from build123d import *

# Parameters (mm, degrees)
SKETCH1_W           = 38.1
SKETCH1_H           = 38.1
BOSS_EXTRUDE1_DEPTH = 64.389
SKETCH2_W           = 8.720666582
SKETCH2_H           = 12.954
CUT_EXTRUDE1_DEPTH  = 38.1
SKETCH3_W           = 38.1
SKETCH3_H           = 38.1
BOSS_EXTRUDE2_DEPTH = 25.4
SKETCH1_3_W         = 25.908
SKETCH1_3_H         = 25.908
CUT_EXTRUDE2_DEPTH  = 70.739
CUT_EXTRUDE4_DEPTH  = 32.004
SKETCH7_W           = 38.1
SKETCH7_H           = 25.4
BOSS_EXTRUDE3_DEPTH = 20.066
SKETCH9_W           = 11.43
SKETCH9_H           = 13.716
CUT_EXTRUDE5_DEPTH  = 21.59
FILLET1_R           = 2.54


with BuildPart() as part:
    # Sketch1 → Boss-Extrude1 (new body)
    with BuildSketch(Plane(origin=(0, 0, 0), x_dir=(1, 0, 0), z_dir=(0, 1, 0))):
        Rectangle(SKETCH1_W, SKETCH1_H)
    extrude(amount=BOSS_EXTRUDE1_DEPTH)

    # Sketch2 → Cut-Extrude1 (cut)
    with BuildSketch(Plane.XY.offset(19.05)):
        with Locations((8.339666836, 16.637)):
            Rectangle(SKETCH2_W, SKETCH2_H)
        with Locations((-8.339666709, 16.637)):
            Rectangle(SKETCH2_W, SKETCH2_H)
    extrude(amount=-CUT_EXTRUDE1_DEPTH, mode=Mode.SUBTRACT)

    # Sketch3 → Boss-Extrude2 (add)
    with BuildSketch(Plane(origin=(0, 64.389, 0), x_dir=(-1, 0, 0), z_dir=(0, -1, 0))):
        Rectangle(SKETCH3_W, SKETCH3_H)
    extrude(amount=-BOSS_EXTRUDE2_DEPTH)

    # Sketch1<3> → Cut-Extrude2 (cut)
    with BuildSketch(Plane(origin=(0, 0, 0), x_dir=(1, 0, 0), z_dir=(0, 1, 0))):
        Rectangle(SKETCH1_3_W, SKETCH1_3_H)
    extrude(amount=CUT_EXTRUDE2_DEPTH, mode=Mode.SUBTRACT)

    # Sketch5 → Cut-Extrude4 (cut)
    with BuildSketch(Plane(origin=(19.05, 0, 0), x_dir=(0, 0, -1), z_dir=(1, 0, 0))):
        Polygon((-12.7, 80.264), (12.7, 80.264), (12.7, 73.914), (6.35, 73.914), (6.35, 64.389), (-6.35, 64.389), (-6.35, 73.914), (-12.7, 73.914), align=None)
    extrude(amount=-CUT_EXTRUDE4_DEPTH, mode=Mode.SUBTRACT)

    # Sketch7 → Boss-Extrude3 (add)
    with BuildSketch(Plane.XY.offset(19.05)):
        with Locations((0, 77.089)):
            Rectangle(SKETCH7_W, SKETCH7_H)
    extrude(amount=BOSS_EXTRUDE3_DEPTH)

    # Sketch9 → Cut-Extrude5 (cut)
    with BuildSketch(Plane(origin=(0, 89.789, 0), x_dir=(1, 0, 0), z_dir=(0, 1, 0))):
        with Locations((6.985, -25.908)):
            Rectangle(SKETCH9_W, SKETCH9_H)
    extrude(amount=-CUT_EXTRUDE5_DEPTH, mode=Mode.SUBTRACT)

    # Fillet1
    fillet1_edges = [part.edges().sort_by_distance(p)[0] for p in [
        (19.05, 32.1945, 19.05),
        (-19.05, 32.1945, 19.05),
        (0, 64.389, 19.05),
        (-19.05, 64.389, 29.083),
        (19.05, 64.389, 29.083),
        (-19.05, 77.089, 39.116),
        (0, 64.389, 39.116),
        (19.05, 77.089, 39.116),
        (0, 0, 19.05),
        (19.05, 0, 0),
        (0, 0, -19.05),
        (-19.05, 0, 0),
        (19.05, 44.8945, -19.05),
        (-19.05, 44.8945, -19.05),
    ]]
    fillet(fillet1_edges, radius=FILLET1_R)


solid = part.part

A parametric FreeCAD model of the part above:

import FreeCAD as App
import Part
import Sketcher
from FreeCAD import Vector
Q = App.Units.Quantity


def edges_at(feature, points):
    """Names of the edges that pass closest to the given points."""
    edges = feature.Shape.Edges
    near = lambda p: min(range(len(edges)), key=lambda i: edges[i].distToShape(Part.Vertex(*p))[0])
    return sorted({f"Edge{near(p) + 1}" for p in points})


def add_polygon(sketch, points):
    """Adds a closed chain of lines whose ends are joined by coincident constraints."""
    first, n = sketch.GeometryCount, len(points)
    for a, b in zip(points, points[1:] + points[:1]):
        sketch.addGeometry(Part.LineSegment(App.Vector(*a, 0), App.Vector(*b, 0)), False)
    for i in range(n):
        sketch.addConstraint(Sketcher.Constraint("Coincident", first + i, 2, first + (i + 1) % n, 1))

doc = App.newDocument("Part")
body = doc.addObject("PartDesign::Body", "Body")

sketch1 = body.newObject("Sketcher::SketchObject", "Sketch")
sketch1.AttachmentSupport = (doc.getObject("XZ_Plane"), [""])
sketch1.MapMode = "FlatFace"
add_polygon(sketch1, [(-19, -19), (-19, 19), (19, 19), (19, -19)])
sketch1.addConstraint([
    Sketcher.Constraint("Vertical", 0),
    Sketcher.Constraint("Horizontal", 1),
    Sketcher.Constraint("Vertical", 2),
    Sketcher.Constraint("Horizontal", 3),
    Sketcher.Constraint("Symmetric", 0, 2, 2, 2, -1, 1),
    Sketcher.Constraint("Equal", 3, 0),
    Sketcher.Constraint("DistanceX", 1, 1, 1, 2, Q("1.5 in")),
])
pad1 = body.newObject("PartDesign::Pad", "Pad")
pad1.Profile = sketch1
pad1.Length = Q("2.535 in")
pad1.Reversed = True

sketch2 = body.newObject("Sketcher::SketchObject", "Sketch001")
sketch2.AttachmentSupport = (doc.getObject("XY_Plane"), [""])
sketch2.MapMode = "FlatFace"
sketch2.AttachmentOffset = App.Placement(Vector(0, 0, 0.75 * 25.4), App.Rotation())
add_polygon(sketch2, [(4, 23), (4, 10), (13, 10), (13, 23)])
add_polygon(sketch2, [(-13, 23), (-13, 10), (-4, 10), (-4, 23)])
sketch2.addConstraint([
    Sketcher.Constraint("Vertical", 0),
    Sketcher.Constraint("Horizontal", 1),
    Sketcher.Constraint("Vertical", 2),
    Sketcher.Constraint("Horizontal", 3),
    Sketcher.Constraint("Vertical", 4),
    Sketcher.Constraint("Horizontal", 5),
    Sketcher.Constraint("Vertical", 6),
    Sketcher.Constraint("Horizontal", 7),
    Sketcher.Constraint("Symmetric", 1, 2, 4, 2, -2),
    Sketcher.Constraint("Symmetric", 3, 2, 6, 2, -2),
    Sketcher.Constraint("DistanceX", 4, 2, 1, 2, Q("1 in")),
    Sketcher.Constraint("DistanceY", 0, 2, 0, 1, Q("0.51 in")),
    Sketcher.Constraint("DistanceY", -1, 1, 0, 2, Q("0.4 in")),
    Sketcher.Constraint("DistanceX", 1, 1, 1, 2, Q("8.720667 mm")),
])
pocket1 = body.newObject("PartDesign::Pocket", "Pocket")
pocket1.Profile = sketch2
pocket1.Length = Q("1.5 in")

sketch3 = body.newObject("Sketcher::SketchObject", "Sketch002")
sketch3.AttachmentSupport = (doc.getObject("XZ_Plane"), [""])
sketch3.MapMode = "FlatFace"
sketch3.AttachmentOffset = App.Placement(Vector(0, 0, -2.535 * 25.4), App.Rotation())
add_polygon(sketch3, [(19, -19), (19, 19), (-19, 19), (-19, -19)])
sketch3.addConstraint([
    Sketcher.Constraint("Vertical", 0),
    Sketcher.Constraint("Horizontal", 1),
    Sketcher.Constraint("Vertical", 2),
    Sketcher.Constraint("Horizontal", 3),
    Sketcher.Constraint("Symmetric", 0, 2, 2, 2, -1, 1),
    Sketcher.Constraint("Equal", 3, 0),
    Sketcher.Constraint("DistanceX", 1, 2, 1, 1, Q("1.5 in")),
])
pad2 = body.newObject("PartDesign::Pad", "Pad001")
pad2.Profile = sketch3
pad2.Length = Q("1 in")
pad2.Reversed = True

sketch4 = body.newObject("Sketcher::SketchObject", "Sketch003")
sketch4.AttachmentSupport = (doc.getObject("XZ_Plane"), [""])
sketch4.MapMode = "FlatFace"
add_polygon(sketch4, [(-13, -13), (-13, 13), (13, 13), (13, -13)])
sketch4.addConstraint([
    Sketcher.Constraint("Vertical", 0),
    Sketcher.Constraint("Horizontal", 1),
    Sketcher.Constraint("Vertical", 2),
    Sketcher.Constraint("Horizontal", 3),
    Sketcher.Constraint("Symmetric", 0, 2, 2, 2, -1, 1),
    Sketcher.Constraint("Equal", 3, 0),
    Sketcher.Constraint("DistanceX", 1, 1, 1, 2, Q("1.02 in")),
])
pocket2 = body.newObject("PartDesign::Pocket", "Pocket001")
pocket2.Profile = sketch4
pocket2.Length = Q("2.785 in")

sketch5 = body.newObject("Sketcher::SketchObject", "Sketch004")
sketch5.AttachmentSupport = (doc.getObject("YZ_Plane"), [""])
sketch5.MapMode = "FlatFace"
sketch5.AttachmentOffset = App.Placement(Vector(0, 0, 0.75 * 25.4), App.Rotation())
add_polygon(sketch5, [(80, -13), (80, 13), (74, 13), (74, 6), (64, 6), (64, -6), (74, -6), (74, -13)])
sketch5.addConstraint([
    Sketcher.Constraint("Vertical", 0),
    Sketcher.Constraint("Horizontal", 1),
    Sketcher.Constraint("Vertical", 2),
    Sketcher.Constraint("Horizontal", 3),
    Sketcher.Constraint("Vertical", 4),
    Sketcher.Constraint("Horizontal", 5),
    Sketcher.Constraint("Vertical", 6),
    Sketcher.Constraint("Horizontal", 7),
    Sketcher.Constraint("Symmetric", 2, 2, 5, 2, -1),
    Sketcher.Constraint("Equal", 7, 2),
    Sketcher.Constraint("Equal", 2, 6),
    Sketcher.Constraint("DistanceY", 0, 1, 0, 2, Q("1 in")),
    Sketcher.Constraint("DistanceY", 4, 2, 4, 1, Q("0.5 in")),
    Sketcher.Constraint("DistanceX", 3, 2, 3, 1, Q("0.375 in")),
    Sketcher.Constraint("DistanceX", -1, 1, 0, 2, Q("3.16 in")),
])
pocket3 = body.newObject("PartDesign::Pocket", "Pocket002")
pocket3.Profile = sketch5
pocket3.Length = Q("1.26 in")

sketch6 = body.newObject("Sketcher::SketchObject", "Sketch005")
sketch6.AttachmentSupport = (doc.getObject("XY_Plane"), [""])
sketch6.MapMode = "FlatFace"
sketch6.AttachmentOffset = App.Placement(Vector(0, 0, 0.75 * 25.4), App.Rotation())
add_polygon(sketch6, [(-19, 90), (-19, 64), (19, 64), (19, 90)])
sketch6.addConstraint([
    Sketcher.Constraint("Vertical", 0),
    Sketcher.Constraint("Horizontal", 1),
    Sketcher.Constraint("Vertical", 2),
    Sketcher.Constraint("Horizontal", 3),
    Sketcher.Constraint("DistanceY", 0, 2, 0, 1, Q("1 in")),
    Sketcher.Constraint("DistanceX", 1, 1, 1, 2, Q("1.5 in")),
    Sketcher.Constraint("DistanceX", 0, 2, -1, 1, Q("0.75 in")),
    Sketcher.Constraint("DistanceY", -1, 1, 0, 2, Q("2.535 in")),
])
pad3 = body.newObject("PartDesign::Pad", "Pad002")
pad3.Profile = sketch6
pad3.Length = Q("0.79 in")

sketch7 = body.newObject("Sketcher::SketchObject", "Sketch006")
sketch7.AttachmentSupport = (doc.getObject("XZ_Plane"), [""])
sketch7.MapMode = "FlatFace"
sketch7.AttachmentOffset = App.Placement(Vector(0, 0, -3.535 * 25.4), App.Rotation())
add_polygon(sketch7, [(1, 19), (1, 33), (13, 33), (13, 19)])
sketch7.addConstraint([
    Sketcher.Constraint("Vertical", 0),
    Sketcher.Constraint("Horizontal", 1),
    Sketcher.Constraint("Vertical", 2),
    Sketcher.Constraint("Horizontal", 3),
    Sketcher.Constraint("DistanceX", 1, 1, 1, 2, Q("0.45 in")),
    Sketcher.Constraint("DistanceY", 0, 1, 0, 2, Q("0.54 in")),
    Sketcher.Constraint("DistanceX", -1, 1, 1, 2, Q("0.5 in")),
    Sketcher.Constraint("DistanceY", -1, 1, 0, 2, Q("1.29 in")),
])
pocket4 = body.newObject("PartDesign::Pocket", "Pocket003")
pocket4.Profile = sketch7
pocket4.Length = Q("0.85 in")
pocket4.Reversed = True
doc.recompute()

fillet = body.newObject("PartDesign::Fillet", "Fillet")
fillet.Base = (pocket4, edges_at(pocket4, [
    (19.05, 32.194, 19.05),
    (-19.05, 32.194, 19.05),
    (0, 64.389, 19.05),
    (-19.05, 64.389, 29.083),
    (19.05, 64.389, 29.083),
    (-19.05, 77.089, 39.116),
    (0, 64.389, 39.116),
    (19.05, 77.089, 39.116),
    (0, 0, 19.05),
    (19.05, 0, 0),
    (0, 0, -19.05),
    (-19.05, 0, 0),
    (19.05, 44.895, -19.05),
    (-19.05, 44.895, -19.05),
]))
fillet.Radius = Q("0.1 in")

doc.recompute()
